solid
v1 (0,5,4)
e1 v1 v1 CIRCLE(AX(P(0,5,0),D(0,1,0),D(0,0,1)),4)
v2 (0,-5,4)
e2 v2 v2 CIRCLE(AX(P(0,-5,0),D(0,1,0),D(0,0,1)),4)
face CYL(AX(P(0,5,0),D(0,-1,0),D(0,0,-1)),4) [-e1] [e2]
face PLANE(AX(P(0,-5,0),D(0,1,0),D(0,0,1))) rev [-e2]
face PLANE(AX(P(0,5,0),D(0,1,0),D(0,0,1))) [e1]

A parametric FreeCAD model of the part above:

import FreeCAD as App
import Part
import Sketcher

V = App.Vector
Q = App.Units.Quantity

doc = App.newDocument("Part")
params = doc.addObject("Spreadsheet::Sheet", "Params")
for row, (alias, value) in enumerate([
    ("sketch1_diameter", "8 mm"),
    ("pad1_length", "10 mm"),
], start=1):
    params.set(f"A{row}", alias)
    params.set(f"B{row}", "=" + value)
    params.setAlias(f"B{row}", alias)

body = doc.addObject("PartDesign::Body", "Body")

sketch1 = body.newObject("Sketcher::SketchObject", "Sketch")
sketch1.AttachmentSupport = (doc.getObject("XZ_Plane"), [""])
sketch1.MapMode = "FlatFace"
sketch1.addGeometry(Part.Circle(V(0, 0, 0), V(0, 0, 1), 4), False)
sketch1.addConstraint([
    Sketcher.Constraint("Coincident", 0, 3, -1, 1),
    Sketcher.Constraint("Diameter", 0, Q("8 mm")),
])
sketch1.setExpression("Constraints[1]", "Params.sketch1_diameter")
pad1 = body.newObject("PartDesign::Pad", "Pad")
pad1.Profile = sketch1
pad1.setExpression("Length", "Params.pad1_length")
pad1.Midplane = True

doc.recompute()
